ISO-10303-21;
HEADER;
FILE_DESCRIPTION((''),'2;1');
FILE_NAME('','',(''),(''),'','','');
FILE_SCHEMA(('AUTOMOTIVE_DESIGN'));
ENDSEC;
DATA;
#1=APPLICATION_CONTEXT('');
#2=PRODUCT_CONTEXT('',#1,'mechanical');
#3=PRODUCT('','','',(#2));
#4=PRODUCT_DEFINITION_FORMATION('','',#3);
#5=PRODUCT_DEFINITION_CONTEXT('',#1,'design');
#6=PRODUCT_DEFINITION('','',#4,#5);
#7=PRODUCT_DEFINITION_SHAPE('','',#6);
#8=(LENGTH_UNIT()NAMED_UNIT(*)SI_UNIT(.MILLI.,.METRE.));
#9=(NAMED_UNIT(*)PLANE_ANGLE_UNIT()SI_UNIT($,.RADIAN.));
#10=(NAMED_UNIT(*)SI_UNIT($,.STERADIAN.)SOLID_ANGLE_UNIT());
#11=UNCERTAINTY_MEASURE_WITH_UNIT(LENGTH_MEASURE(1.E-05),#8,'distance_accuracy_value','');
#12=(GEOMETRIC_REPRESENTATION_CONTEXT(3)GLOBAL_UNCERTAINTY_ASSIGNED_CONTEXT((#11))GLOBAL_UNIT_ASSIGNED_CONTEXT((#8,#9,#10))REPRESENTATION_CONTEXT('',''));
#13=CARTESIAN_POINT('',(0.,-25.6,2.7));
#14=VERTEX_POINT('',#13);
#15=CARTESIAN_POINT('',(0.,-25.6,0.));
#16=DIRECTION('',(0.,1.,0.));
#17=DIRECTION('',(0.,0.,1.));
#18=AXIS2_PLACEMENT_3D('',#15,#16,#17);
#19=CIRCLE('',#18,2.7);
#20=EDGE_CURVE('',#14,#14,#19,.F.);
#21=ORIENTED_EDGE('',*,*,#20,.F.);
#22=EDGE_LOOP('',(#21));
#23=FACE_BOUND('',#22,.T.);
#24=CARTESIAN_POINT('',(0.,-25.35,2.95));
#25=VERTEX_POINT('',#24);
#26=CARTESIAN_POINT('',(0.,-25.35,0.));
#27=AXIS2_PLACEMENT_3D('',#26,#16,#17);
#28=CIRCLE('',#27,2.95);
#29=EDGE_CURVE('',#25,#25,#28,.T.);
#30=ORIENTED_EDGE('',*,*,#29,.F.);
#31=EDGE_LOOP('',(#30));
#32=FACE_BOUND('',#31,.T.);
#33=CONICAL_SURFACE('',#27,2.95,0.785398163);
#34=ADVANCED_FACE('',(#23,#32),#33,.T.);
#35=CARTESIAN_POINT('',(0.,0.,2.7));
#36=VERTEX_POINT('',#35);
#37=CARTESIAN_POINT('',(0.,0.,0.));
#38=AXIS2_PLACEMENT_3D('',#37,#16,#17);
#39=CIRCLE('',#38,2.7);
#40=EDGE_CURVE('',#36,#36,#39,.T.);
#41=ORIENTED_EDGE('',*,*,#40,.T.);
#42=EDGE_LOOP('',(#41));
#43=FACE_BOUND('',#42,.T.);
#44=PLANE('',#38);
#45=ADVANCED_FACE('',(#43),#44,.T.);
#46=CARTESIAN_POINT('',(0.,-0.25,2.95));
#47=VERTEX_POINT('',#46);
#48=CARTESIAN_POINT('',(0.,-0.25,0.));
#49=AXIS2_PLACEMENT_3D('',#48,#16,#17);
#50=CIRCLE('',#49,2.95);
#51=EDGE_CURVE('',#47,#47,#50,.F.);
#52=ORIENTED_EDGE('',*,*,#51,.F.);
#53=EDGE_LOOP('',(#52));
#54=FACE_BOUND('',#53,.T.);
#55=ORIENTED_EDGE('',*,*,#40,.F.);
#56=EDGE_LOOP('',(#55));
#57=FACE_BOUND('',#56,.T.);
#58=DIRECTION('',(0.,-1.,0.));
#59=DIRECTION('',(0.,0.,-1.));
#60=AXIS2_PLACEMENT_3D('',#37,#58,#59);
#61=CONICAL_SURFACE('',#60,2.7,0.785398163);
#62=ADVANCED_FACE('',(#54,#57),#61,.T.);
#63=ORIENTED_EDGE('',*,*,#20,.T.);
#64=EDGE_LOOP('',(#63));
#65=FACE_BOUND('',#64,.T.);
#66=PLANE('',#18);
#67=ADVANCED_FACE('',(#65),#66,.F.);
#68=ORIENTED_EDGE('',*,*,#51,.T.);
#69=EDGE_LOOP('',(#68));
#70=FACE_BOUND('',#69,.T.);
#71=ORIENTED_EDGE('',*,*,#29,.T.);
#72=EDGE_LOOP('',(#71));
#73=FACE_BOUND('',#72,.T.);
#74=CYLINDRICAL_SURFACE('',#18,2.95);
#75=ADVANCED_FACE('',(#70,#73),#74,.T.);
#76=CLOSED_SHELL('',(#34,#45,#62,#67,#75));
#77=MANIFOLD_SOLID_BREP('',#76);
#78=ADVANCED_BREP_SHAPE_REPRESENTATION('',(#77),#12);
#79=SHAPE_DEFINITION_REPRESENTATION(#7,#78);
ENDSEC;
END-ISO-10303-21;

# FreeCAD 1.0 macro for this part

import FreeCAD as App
import Part
import Sketcher

V = App.Vector
Q = App.Units.Quantity


def edges_at(feature, points):
    """Names of the edges that pass closest to the given points."""
    edges = feature.Shape.Edges
    near = lambda p: min(range(len(edges)), key=lambda i: edges[i].distToShape(Part.Vertex(*p))[0])
    return sorted({f"Edge{near(p) + 1}" for p in points})

doc = App.newDocument("Part")
body = doc.addObject("PartDesign::Body", "Body")

sketch1 = body.newObject("Sketcher::SketchObject", "Sketch")
sketch1.AttachmentSupport = (doc.getObject("XZ_Plane"), [""])
sketch1.MapMode = "FlatFace"
sketch1.addGeometry(Part.Circle(V(0, 0, 0), V(0, 0, 1), 3), False)
sketch1.addConstraint(Sketcher.Constraint("Coincident", 0, 3, -1, 1))
sketch1.addConstraint(Sketcher.Constraint("Diameter", 0, Q("5.9 mm")))
pad1 = body.newObject("PartDesign::Pad", "Pad")
pad1.Profile = sketch1
pad1.Length = 25.6
doc.recompute()

chamfer = body.newObject("PartDesign::Chamfer", "Chamfer")
chamfer.Base = (pad1, edges_at(pad1, [(-2.95, -25.6, 0)]))
chamfer.Size = 0.25
doc.recompute()

chamfer2 = body.newObject("PartDesign::Chamfer", "Chamfer001")
chamfer2.Base = (chamfer, edges_at(chamfer, [(-2.95, 0, 0)]))
chamfer2.Size = 0.25

doc.recompute()
